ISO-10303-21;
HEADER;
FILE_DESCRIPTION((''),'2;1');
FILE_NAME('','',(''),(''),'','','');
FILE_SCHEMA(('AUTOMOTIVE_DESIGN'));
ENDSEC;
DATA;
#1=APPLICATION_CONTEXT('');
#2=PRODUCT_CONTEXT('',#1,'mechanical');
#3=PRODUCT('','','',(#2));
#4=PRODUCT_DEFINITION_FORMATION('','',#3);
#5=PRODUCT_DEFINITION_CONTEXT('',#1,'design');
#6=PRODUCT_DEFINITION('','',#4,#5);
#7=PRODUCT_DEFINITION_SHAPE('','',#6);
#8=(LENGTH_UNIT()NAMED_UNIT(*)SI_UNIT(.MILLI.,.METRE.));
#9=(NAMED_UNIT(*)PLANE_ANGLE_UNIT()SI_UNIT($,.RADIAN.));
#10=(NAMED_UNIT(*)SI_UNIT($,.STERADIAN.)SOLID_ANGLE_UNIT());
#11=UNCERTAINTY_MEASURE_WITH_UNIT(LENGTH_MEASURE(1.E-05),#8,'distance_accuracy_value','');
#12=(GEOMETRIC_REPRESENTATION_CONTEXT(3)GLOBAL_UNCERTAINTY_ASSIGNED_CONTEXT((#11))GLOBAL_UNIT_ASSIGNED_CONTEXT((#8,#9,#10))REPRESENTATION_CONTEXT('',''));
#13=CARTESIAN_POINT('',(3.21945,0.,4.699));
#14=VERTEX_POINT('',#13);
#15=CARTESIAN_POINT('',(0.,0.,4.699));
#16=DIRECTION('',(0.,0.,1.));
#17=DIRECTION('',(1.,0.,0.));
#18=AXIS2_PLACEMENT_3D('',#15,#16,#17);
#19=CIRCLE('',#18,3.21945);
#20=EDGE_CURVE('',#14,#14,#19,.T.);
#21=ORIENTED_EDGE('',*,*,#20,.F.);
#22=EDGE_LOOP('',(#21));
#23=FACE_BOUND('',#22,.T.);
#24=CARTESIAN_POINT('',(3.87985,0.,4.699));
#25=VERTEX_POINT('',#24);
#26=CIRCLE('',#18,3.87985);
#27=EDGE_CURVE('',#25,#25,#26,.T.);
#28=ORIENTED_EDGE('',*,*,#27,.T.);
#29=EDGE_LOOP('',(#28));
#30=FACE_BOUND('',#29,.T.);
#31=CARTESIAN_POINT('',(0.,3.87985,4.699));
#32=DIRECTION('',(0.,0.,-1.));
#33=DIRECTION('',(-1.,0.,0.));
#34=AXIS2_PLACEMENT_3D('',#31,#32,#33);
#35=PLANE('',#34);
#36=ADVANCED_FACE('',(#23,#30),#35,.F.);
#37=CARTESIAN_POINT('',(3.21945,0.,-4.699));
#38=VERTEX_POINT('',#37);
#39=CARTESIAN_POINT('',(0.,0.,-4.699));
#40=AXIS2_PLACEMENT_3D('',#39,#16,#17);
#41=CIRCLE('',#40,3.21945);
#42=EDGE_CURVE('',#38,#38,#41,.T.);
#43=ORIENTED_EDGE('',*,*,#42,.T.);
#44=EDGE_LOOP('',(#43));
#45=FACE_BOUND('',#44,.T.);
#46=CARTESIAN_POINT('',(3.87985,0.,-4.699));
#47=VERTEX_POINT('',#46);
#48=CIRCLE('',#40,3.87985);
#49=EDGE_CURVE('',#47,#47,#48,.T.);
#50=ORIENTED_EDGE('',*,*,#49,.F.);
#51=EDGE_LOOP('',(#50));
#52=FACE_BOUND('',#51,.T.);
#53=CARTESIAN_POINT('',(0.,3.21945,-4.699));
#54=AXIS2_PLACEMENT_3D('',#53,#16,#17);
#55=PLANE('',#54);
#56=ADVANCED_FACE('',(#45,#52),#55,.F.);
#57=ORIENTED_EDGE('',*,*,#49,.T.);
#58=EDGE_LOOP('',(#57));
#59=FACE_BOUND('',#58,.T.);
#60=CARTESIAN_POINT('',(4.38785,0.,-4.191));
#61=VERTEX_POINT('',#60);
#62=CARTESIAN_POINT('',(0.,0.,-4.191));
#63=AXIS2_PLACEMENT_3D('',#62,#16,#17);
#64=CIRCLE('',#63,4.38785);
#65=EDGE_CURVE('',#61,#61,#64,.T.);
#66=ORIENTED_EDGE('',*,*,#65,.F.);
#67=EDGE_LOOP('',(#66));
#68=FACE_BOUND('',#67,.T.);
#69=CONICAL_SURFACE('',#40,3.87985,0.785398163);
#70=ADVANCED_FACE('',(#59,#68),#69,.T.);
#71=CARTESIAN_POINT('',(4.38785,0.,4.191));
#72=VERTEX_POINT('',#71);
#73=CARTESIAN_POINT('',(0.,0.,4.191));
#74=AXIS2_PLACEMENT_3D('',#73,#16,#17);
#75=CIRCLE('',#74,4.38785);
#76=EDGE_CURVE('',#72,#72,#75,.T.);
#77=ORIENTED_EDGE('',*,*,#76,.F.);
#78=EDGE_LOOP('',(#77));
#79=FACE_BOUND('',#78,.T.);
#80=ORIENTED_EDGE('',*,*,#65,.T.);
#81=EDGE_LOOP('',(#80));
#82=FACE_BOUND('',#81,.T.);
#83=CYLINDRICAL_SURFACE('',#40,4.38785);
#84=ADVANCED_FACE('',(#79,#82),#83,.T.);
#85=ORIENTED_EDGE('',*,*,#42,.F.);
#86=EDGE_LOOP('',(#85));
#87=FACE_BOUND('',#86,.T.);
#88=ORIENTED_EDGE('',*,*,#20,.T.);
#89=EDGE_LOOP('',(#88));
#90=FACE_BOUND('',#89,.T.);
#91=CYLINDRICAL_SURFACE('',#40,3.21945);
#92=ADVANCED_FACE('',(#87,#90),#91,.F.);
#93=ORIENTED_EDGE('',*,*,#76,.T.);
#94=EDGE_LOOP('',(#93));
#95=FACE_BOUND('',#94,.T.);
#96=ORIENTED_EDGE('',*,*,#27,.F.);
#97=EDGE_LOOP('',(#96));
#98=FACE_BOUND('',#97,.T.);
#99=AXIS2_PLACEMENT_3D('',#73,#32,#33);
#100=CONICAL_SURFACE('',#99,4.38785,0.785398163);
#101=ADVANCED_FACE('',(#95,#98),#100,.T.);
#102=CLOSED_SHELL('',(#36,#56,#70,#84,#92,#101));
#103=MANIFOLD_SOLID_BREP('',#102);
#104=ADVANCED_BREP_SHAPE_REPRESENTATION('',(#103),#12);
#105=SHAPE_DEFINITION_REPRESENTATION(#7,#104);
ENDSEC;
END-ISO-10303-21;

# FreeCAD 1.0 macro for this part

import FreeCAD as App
import Part
import Sketcher
Q = App.Units.Quantity

doc = App.newDocument("Part")
body = doc.addObject("PartDesign::Body", "Body")

# Sketch on YZ plane
sketch1 = body.newObject("Sketcher::SketchObject", "Sketch")
sketch1.AttachmentSupport = (doc.getObject("YZ_Plane"), [""])
sketch1.MapMode = "FlatFace"
sketch1.addGeometry(Part.LineSegment(App.Vector(3.9, 4.7, 0), App.Vector(3.2, 4.7, 0)), False)
sketch1.addGeometry(Part.LineSegment(App.Vector(3.2, 4.7, 0), App.Vector(3.2, -4.7, 0)), False)
sketch1.addGeometry(Part.LineSegment(App.Vector(3.2, -4.7, 0), App.Vector(3.9, -4.7, 0)), False)
sketch1.addGeometry(Part.LineSegment(App.Vector(3.9, -4.7, 0), App.Vector(4.4, -4.2, 0)), False)
sketch1.addGeometry(Part.LineSegment(App.Vector(4.4, -4.2, 0), App.Vector(4.4, 4.2, 0)), False)
sketch1.addGeometry(Part.LineSegment(App.Vector(4.4, 4.2, 0), App.Vector(3.9, 4.7, 0)), False)
sketch1.addConstraint(Sketcher.Constraint("Coincident", 0, 2, 1, 1))
sketch1.addConstraint(Sketcher.Constraint("Coincident", 1, 2, 2, 1))
sketch1.addConstraint(Sketcher.Constraint("Coincident", 2, 2, 3, 1))
sketch1.addConstraint(Sketcher.Constraint("Coincident", 3, 2, 4, 1))
sketch1.addConstraint(Sketcher.Constraint("Coincident", 4, 2, 5, 1))
sketch1.addConstraint(Sketcher.Constraint("Coincident", 5, 2, 0, 1))
sketch1.addConstraint(Sketcher.Constraint("Horizontal", 0))
sketch1.addConstraint(Sketcher.Constraint("Vertical", 1))
sketch1.addConstraint(Sketcher.Constraint("Horizontal", 2))
sketch1.addConstraint(Sketcher.Constraint("Vertical", 4))
sketch1.addConstraint(Sketcher.Constraint("Symmetric", 2, 2, 5, 2, -1))
sketch1.addConstraint(Sketcher.Constraint("Perpendicular", 3, 5))
sketch1.addConstraint(Sketcher.Constraint("Equal", 3, 5))
sketch1.addConstraint(Sketcher.Constraint("DistanceY", 1, 2, 1, 1, Q("0.37 in")))
sketch1.addConstraint(Sketcher.Constraint("DistanceY", 4, 1, 4, 2, Q("0.33 in")))
sketch1.addConstraint(Sketcher.Constraint("DistanceX", 0, 2, 0, 1, Q("0.026 in")))
sketch1.addConstraint(Sketcher.Constraint("DistanceX", -1, 1, 0, 2, Q("3.21945 mm")))
revolution = body.newObject("PartDesign::Revolution", "Revolution")
revolution.Profile = sketch1
revolution.ReferenceAxis = (sketch1, ["V_Axis"])
revolution.Angle = 360

doc.recompute()
